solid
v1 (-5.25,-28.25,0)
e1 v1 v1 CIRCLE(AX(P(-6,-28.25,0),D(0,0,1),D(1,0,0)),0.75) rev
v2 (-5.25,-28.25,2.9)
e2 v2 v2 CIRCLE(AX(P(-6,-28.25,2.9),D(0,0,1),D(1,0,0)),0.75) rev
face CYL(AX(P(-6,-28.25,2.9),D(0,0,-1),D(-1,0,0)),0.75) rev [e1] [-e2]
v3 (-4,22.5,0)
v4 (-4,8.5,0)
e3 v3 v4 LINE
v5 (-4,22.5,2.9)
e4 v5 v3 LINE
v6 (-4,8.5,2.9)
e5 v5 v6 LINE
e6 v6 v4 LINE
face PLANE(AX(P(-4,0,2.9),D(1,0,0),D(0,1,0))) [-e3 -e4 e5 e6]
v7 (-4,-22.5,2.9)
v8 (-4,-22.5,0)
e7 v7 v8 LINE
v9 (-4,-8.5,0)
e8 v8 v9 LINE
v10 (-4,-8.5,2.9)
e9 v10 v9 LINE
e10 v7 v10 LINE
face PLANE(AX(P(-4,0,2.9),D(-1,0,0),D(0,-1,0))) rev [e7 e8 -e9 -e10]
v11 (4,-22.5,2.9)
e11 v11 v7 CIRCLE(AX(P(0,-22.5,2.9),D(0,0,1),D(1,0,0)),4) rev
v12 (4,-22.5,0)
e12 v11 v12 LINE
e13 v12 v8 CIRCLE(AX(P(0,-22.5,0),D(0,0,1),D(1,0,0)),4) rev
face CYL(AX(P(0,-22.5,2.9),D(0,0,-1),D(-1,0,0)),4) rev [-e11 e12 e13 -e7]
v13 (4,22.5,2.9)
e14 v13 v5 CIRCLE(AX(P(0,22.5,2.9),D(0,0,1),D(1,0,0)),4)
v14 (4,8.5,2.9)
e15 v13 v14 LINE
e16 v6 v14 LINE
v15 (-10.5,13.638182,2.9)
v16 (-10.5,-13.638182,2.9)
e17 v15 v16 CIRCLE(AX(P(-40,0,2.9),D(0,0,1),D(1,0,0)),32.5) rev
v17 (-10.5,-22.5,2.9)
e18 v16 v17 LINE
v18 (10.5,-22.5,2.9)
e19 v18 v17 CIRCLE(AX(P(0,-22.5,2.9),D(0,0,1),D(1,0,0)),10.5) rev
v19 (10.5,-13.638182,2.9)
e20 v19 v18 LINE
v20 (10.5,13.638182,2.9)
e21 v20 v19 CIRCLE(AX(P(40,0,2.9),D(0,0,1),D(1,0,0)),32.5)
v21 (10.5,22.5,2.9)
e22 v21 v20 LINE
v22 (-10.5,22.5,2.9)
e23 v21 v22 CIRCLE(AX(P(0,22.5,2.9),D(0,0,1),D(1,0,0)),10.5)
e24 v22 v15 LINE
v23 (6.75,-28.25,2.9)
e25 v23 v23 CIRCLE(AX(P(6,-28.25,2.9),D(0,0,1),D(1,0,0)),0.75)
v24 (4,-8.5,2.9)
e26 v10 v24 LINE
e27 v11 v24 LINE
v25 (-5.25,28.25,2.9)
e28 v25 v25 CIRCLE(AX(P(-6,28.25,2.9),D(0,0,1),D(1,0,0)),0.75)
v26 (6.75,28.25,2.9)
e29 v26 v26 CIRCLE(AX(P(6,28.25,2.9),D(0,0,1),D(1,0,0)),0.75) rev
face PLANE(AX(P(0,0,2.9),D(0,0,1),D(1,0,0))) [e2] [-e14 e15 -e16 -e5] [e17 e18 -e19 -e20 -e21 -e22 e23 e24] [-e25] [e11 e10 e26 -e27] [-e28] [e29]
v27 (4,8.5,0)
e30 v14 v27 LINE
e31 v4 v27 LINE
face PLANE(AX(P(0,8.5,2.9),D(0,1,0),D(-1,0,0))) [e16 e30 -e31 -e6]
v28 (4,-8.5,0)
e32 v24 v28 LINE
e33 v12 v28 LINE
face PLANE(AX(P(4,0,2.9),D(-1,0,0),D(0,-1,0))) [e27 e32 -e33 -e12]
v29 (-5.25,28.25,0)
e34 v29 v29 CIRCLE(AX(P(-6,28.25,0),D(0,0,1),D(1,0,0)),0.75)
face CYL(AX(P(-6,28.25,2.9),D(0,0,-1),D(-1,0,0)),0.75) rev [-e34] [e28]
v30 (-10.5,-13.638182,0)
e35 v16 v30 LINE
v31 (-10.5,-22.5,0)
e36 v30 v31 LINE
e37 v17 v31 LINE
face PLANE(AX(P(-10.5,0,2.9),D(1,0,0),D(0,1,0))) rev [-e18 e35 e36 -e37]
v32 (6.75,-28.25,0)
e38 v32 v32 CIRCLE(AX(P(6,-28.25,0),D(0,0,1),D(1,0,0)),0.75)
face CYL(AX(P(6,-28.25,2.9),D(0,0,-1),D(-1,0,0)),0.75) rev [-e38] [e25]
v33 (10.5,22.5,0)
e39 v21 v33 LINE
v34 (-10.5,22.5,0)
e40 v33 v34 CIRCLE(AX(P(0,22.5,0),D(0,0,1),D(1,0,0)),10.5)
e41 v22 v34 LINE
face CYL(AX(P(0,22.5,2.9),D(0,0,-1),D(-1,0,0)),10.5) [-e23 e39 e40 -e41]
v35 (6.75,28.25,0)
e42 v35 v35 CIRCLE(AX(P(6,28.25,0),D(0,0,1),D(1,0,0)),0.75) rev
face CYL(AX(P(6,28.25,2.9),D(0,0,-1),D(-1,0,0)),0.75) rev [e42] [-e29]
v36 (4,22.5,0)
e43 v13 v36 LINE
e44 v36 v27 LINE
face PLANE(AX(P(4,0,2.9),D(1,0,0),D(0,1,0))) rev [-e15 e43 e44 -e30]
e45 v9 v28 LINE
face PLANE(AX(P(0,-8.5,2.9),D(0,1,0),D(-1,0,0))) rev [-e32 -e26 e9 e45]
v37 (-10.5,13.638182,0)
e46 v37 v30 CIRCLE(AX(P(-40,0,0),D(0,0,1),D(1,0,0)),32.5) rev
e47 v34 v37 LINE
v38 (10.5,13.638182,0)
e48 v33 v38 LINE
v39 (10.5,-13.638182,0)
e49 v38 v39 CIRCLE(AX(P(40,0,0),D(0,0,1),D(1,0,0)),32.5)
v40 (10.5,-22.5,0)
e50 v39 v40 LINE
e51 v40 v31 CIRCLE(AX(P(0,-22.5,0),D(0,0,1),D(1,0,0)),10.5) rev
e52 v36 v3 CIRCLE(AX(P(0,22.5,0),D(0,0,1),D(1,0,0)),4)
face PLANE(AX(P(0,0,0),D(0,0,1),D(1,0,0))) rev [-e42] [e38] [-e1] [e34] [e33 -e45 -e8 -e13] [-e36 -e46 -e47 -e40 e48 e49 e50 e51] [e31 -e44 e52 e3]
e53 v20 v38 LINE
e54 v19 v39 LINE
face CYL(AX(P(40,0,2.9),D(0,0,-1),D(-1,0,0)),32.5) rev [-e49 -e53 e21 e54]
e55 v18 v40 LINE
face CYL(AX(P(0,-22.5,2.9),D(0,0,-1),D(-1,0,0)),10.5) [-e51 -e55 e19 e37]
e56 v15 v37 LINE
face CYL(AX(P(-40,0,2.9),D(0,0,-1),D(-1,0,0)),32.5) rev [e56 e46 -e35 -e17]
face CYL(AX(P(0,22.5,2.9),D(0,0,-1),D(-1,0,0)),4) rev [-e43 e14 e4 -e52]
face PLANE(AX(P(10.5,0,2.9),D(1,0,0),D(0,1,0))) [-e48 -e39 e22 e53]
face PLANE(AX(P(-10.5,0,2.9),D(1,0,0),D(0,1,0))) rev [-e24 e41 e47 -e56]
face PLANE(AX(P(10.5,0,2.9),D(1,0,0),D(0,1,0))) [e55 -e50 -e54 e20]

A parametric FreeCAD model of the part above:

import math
import FreeCAD as App
import Part
import Sketcher

doc = App.newDocument("Part")
params = doc.addObject("Spreadsheet::Sheet", "Params")
for row, (alias, value) in enumerate([
    ("sketch1_radius", "4 mm"),
    ("sketch1_diameter", "1.5 mm"),
    ("sketch1_radius2", "32.5 mm"),
    ("sketch1_radius3", "10.5 mm"),
    ("sketch1_height", "14 mm"),
    ("pad1_length", "2.9 mm"),
], start=1):
    params.set(f"A{row}", alias)
    params.set(f"B{row}", "=" + value)
    params.setAlias(f"B{row}", alias)

body = doc.addObject("PartDesign::Body", "Body")

# Sketch on XY plane
sketch1 = doc.addObject("Sketcher::SketchObject", "Sketch")
body.addObject(sketch1)
sketch1.AttachmentSupport = (doc.XY_Plane, [""])
sketch1.MapMode = "FlatFace"
sketch1.addGeometry(Part.LineSegment(App.Vector(-10.5, 22.5, 0), App.Vector(-10.5, 13.6, 0)), False)
sketch1.addGeometry(Part.ArcOfCircle(Part.Circle(App.Vector(-40, 0, 0), App.Vector(0, 0, 1), 32.5), math.radians(-25), math.radians(25)), False)
sketch1.addGeometry(Part.LineSegment(App.Vector(-10.5, -13.6, 0), App.Vector(-10.5, -22.5, 0)), False)
sketch1.addGeometry(Part.ArcOfCircle(Part.Circle(App.Vector(0, -22.5, 0), App.Vector(0, 0, 1), 10.5), math.radians(180), math.radians(360)), False)
sketch1.addGeometry(Part.LineSegment(App.Vector(10.5, -22.5, 0), App.Vector(10.5, -13.6, 0)), False)
sketch1.addGeometry(Part.ArcOfCircle(Part.Circle(App.Vector(40, 0, 0), App.Vector(0, 0, 1), 32.5), math.radians(155), math.radians(205)), False)
sketch1.addGeometry(Part.LineSegment(App.Vector(10.5, 13.6, 0), App.Vector(10.5, 22.5, 0)), False)
sketch1.addGeometry(Part.ArcOfCircle(Part.Circle(App.Vector(0, 22.5, 0), App.Vector(0, 0, 1), 10.5), math.radians(0), math.radians(180)), False)
sketch1.addGeometry(Part.Circle(App.Vector(-6, -28.2, 0), App.Vector(0, 0, 1), 0.8), False)
sketch1.addGeometry(Part.LineSegment(App.Vector(4, -8.5, 0), App.Vector(4, -22.5, 0)), False)
sketch1.addGeometry(Part.ArcOfCircle(Part.Circle(App.Vector(0, -22.5, 0), App.Vector(0, 0, 1), 4), math.radians(180), math.radians(360)), False)
sketch1.addGeometry(Part.LineSegment(App.Vector(-4, -22.5, 0), App.Vector(-4, -8.5, 0)), False)
sketch1.addGeometry(Part.LineSegment(App.Vector(-4, -8.5, 0), App.Vector(4, -8.5, 0)), False)
sketch1.addGeometry(Part.Circle(App.Vector(6, -28.2, 0), App.Vector(0, 0, 1), 0.8), False)
sketch1.addGeometry(Part.Circle(App.Vector(-6, 28.2, 0), App.Vector(0, 0, 1), 0.8), False)
sketch1.addGeometry(Part.ArcOfCircle(Part.Circle(App.Vector(0, 22.5, 0), App.Vector(0, 0, 1), 4), math.radians(0), math.radians(180)), False)
sketch1.addGeometry(Part.LineSegment(App.Vector(4, 22.5, 0), App.Vector(4, 8.5, 0)), False)
sketch1.addGeometry(Part.LineSegment(App.Vector(4, 8.5, 0), App.Vector(-4, 8.5, 0)), False)
sketch1.addGeometry(Part.LineSegment(App.Vector(-4, 8.5, 0), App.Vector(-4, 22.5, 0)), False)
sketch1.addGeometry(Part.Circle(App.Vector(6, 28.2, 0), App.Vector(0, 0, 1), 0.8), False)
sketch1.addConstraint(Sketcher.Constraint("Coincident", 0, 2, 1, 2))
sketch1.addConstraint(Sketcher.Constraint("Coincident", 1, 1, 2, 1))
sketch1.addConstraint(Sketcher.Constraint("Tangent", 2, 2, 3, 1))
sketch1.addConstraint(Sketcher.Constraint("Tangent", 3, 2, 4, 1))
sketch1.addConstraint(Sketcher.Constraint("Coincident", 4, 2, 5, 2))
sketch1.addConstraint(Sketcher.Constraint("Coincident", 5, 1, 6, 1))
sketch1.addConstraint(Sketcher.Constraint("Tangent", 6, 2, 7, 1))
sketch1.addConstraint(Sketcher.Constraint("Tangent", 7, 2, 0, 1))
sketch1.addConstraint(Sketcher.Constraint("Tangent", 9, 2, 10, 2))
sketch1.addConstraint(Sketcher.Constraint("Tangent", 10, 1, 11, 1))
sketch1.addConstraint(Sketcher.Constraint("Coincident", 11, 2, 12, 1))
sketch1.addConstraint(Sketcher.Constraint("Coincident", 12, 2, 9, 1))
sketch1.addConstraint(Sketcher.Constraint("Tangent", 15, 1, 16, 1))
sketch1.addConstraint(Sketcher.Constraint("Coincident", 16, 2, 17, 1))
sketch1.addConstraint(Sketcher.Constraint("Coincident", 17, 2, 18, 1))
sketch1.addConstraint(Sketcher.Constraint("Tangent", 18, 2, 15, 2))
sketch1.addConstraint(Sketcher.Constraint("Vertical", 0))
sketch1.addConstraint(Sketcher.Constraint("Vertical", 2))
sketch1.addConstraint(Sketcher.Constraint("Vertical", 4))
sketch1.addConstraint(Sketcher.Constraint("Vertical", 6))
sketch1.addConstraint(Sketcher.Constraint("Vertical", 9))
sketch1.addConstraint(Sketcher.Constraint("Vertical", 11))
sketch1.addConstraint(Sketcher.Constraint("Horizontal", 12))
sketch1.addConstraint(Sketcher.Constraint("Vertical", 16))
sketch1.addConstraint(Sketcher.Constraint("Horizontal", 17))
sketch1.addConstraint(Sketcher.Constraint("Vertical", 18))
sketch1.addConstraint(Sketcher.Constraint("Coincident", 10, 3, 3, 3))
sketch1.addConstraint(Sketcher.Constraint("Coincident", 15, 3, 7, 3))
sketch1.addConstraint(Sketcher.Constraint("Equal", 1, 5))
sketch1.addConstraint(Sketcher.Constraint("Equal", 3, 7))
sketch1.addConstraint(Sketcher.Constraint("Equal", 8, 13))
sketch1.addConstraint(Sketcher.Constraint("Equal", 13, 14))
sketch1.addConstraint(Sketcher.Constraint("Equal", 10, 15))
sketch1.addConstraint(Sketcher.Constraint("Equal", 14, 19))
sketch1.addConstraint(Sketcher.Constraint("Symmetric", 1, 3, 5, 3, -1, 1))
sketch1.addConstraint(Sketcher.Constraint("Symmetric", 3, 3, 7, 3, -1, 1))
sketch1.addConstraint(Sketcher.Constraint("Symmetric", 13, 3, 14, 3, -1, 1))
sketch1.addConstraint(Sketcher.Constraint("Symmetric", 8, 3, 19, 3, -1, 1))
sketch1.addConstraint(Sketcher.Constraint("Symmetric", 8, 3, 13, 3, -2))
sketch1.addConstraint(Sketcher.Constraint("Symmetric", 1, 1, 4, 2, -2))
sketch1.addConstraint(Sketcher.Constraint("Equal", 11, 16))
sketch1.addConstraint(Sketcher.Constraint("Radius", 10, 4.0))
sketch1.addConstraint(Sketcher.Constraint("Diameter", 8, 1.5))
sketch1.addConstraint(Sketcher.Constraint("Radius", 1, 32.5))
sketch1.addConstraint(Sketcher.Constraint("Radius", 3, 10.5))
sketch1.addConstraint(Sketcher.Constraint("DistanceY", 9, 2, 9, 1, 14.0))
sketch1.addConstraint(Sketcher.Constraint("DistanceX", 1, 3, -1, 1, 40.0))
sketch1.addConstraint(Sketcher.Constraint("DistanceX", 8, 3, -1, 1, 6.0))
sketch1.addConstraint(Sketcher.Constraint("DistanceY", 3, 3, 7, 3, 45.0))
sketch1.addConstraint(Sketcher.Constraint("DistanceY", 8, 3, -1, 1, 28.25))
sketch1.setExpression("Constraints[41]", "Params.sketch1_radius")
sketch1.setExpression("Constraints[42]", "Params.sketch1_diameter")
sketch1.setExpression("Constraints[43]", "Params.sketch1_radius2")
sketch1.setExpression("Constraints[44]", "Params.sketch1_radius3")
sketch1.setExpression("Constraints[45]", "Params.sketch1_height")
pad1 = doc.addObject("PartDesign::Pad", "Pad")
body.addObject(pad1)
pad1.Profile = sketch1
pad1.setExpression("Length", "Params.pad1_length")

doc.recompute()
